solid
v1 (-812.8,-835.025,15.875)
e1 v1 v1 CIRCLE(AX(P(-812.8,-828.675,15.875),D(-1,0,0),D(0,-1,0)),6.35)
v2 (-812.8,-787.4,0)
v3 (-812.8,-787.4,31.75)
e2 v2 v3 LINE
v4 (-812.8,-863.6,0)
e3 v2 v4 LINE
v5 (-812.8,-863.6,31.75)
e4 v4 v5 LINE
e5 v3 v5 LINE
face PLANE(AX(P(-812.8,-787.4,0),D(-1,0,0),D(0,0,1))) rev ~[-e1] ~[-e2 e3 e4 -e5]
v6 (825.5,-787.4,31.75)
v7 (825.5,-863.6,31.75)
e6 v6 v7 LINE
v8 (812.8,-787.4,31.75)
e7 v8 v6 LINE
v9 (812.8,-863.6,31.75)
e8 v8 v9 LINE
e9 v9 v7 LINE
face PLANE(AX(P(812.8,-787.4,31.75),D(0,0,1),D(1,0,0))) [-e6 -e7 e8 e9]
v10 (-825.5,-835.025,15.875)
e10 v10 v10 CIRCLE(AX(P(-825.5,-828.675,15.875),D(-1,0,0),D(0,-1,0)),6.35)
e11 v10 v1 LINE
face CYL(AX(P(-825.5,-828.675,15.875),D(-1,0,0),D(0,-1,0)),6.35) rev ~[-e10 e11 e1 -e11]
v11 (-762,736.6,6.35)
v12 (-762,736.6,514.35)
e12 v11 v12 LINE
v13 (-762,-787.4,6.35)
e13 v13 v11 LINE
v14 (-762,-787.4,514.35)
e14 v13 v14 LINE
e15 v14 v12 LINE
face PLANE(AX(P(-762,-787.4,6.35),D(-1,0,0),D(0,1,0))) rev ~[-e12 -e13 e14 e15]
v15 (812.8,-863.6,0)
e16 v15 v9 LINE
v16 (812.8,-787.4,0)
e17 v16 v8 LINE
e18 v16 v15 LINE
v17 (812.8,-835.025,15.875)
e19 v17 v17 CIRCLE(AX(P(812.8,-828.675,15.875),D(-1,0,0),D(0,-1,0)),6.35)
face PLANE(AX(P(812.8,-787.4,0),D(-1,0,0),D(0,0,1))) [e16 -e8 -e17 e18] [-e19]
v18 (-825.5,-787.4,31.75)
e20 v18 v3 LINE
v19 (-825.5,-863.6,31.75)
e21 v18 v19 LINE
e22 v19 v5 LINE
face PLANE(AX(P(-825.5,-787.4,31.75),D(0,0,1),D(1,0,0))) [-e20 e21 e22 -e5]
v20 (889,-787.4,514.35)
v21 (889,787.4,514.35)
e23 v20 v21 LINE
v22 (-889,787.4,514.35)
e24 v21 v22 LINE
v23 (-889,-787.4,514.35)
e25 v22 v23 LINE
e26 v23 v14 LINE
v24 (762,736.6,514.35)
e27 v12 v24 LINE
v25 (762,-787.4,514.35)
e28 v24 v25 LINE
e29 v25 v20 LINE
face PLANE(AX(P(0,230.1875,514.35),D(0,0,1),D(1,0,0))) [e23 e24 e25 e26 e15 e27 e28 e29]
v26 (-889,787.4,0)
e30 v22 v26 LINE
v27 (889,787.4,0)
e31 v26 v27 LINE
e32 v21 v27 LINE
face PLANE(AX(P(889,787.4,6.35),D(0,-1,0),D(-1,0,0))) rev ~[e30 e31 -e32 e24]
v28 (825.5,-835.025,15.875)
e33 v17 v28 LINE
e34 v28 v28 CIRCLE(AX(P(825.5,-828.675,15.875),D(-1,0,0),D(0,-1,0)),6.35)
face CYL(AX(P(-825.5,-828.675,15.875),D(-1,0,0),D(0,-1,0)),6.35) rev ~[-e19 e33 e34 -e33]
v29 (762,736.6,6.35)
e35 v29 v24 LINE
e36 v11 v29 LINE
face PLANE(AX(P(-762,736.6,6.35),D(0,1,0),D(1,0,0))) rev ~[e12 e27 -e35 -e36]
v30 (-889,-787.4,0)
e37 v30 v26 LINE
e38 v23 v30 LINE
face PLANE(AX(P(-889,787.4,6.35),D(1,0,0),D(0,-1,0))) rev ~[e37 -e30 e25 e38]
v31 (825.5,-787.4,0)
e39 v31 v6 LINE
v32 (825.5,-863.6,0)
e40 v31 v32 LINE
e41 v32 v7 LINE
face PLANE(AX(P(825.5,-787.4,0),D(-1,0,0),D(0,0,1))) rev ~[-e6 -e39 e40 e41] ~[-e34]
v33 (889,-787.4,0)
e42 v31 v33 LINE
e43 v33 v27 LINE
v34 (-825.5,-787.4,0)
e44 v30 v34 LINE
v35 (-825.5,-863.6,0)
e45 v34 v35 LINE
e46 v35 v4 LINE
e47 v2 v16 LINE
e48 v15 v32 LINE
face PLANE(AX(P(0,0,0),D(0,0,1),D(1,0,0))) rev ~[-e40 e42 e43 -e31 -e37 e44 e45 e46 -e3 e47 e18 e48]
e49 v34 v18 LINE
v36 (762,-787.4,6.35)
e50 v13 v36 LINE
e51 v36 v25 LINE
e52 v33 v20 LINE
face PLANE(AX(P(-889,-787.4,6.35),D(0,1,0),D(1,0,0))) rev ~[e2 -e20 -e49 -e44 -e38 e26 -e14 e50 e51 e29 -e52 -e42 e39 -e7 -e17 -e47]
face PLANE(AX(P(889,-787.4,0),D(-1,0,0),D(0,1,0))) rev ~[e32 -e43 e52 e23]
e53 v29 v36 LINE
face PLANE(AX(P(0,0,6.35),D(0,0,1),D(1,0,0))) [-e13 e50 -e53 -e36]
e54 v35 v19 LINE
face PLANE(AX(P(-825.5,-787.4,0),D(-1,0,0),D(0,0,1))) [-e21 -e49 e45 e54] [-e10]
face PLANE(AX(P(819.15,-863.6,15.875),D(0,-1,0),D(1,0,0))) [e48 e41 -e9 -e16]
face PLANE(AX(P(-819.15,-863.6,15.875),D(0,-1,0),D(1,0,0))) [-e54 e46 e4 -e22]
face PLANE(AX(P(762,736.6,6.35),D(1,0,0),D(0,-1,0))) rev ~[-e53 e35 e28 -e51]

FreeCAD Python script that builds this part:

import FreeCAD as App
import Part
import Sketcher
Q = App.Units.Quantity

doc = App.newDocument("Part")
body = doc.addObject("PartDesign::Body", "Body")

# Sketch on XY plane
sketch1 = body.newObject("Sketcher::SketchObject", "Sketch")
sketch1.AttachmentSupport = (doc.getObject("XY_Plane"), [""])
sketch1.MapMode = "FlatFace"
sketch1.addGeometry([
    Part.LineSegment(App.Vector(-889, 787, 0), App.Vector(-889, -787, 0)),
    Part.LineSegment(App.Vector(-889, -787, 0), App.Vector(889, -787, 0)),
    Part.LineSegment(App.Vector(889, -787, 0), App.Vector(889, 787, 0)),
    Part.LineSegment(App.Vector(889, 787, 0), App.Vector(-889, 787, 0)),
], False)
sketch1.addConstraint([
    Sketcher.Constraint("Coincident", 0, 2, 1, 1),
    Sketcher.Constraint("Coincident", 1, 2, 2, 1),
    Sketcher.Constraint("Coincident", 2, 2, 3, 1),
    Sketcher.Constraint("Coincident", 3, 2, 0, 1),
    Sketcher.Constraint("Vertical", 0),
    Sketcher.Constraint("Horizontal", 1),
    Sketcher.Constraint("Vertical", 2),
    Sketcher.Constraint("Horizontal", 3),
    Sketcher.Constraint("Symmetric", 0, 2, 2, 2, -1, 1),
    Sketcher.Constraint("DistanceX", 1, 1, 1, 2, Q("70 in")),
    Sketcher.Constraint("DistanceY", 0, 2, 0, 1, Q("62 in")),
])
pad1 = body.newObject("PartDesign::Pad", "Pad")
pad1.Profile = sketch1
pad1.Length = Q("0.25 in")

# Sketch on XY plane
sketch2 = body.newObject("Sketcher::SketchObject", "Sketch001")
sketch2.AttachmentSupport = (doc.getObject("XY_Plane"), [""])
sketch2.MapMode = "FlatFace"
sketch2.AttachmentOffset = App.Placement(App.Vector(0, 0, 0.25 * 25.4), App.Rotation())
sketch2.addGeometry([
    Part.LineSegment(App.Vector(-889, -787, 0), App.Vector(-762, -787, 0)),  # 0
    Part.LineSegment(App.Vector(-762, -787, 0), App.Vector(-762, 737, 0)),  # 1
    Part.LineSegment(App.Vector(-762, 737, 0), App.Vector(762, 737, 0)),  # 2
    Part.LineSegment(App.Vector(762, 737, 0), App.Vector(762, -787, 0)),  # 3
    Part.LineSegment(App.Vector(762, -787, 0), App.Vector(889, -787, 0)),  # 4
    Part.LineSegment(App.Vector(889, -787, 0), App.Vector(889, 787, 0)),  # 5
    Part.LineSegment(App.Vector(889, 787, 0), App.Vector(-889, 787, 0)),  # 6
    Part.LineSegment(App.Vector(-889, 787, 0), App.Vector(-889, -787, 0)),  # 7
], False)
sketch2.addConstraint([
    Sketcher.Constraint("Coincident", 0, 2, 1, 1),
    Sketcher.Constraint("Coincident", 1, 2, 2, 1),
    Sketcher.Constraint("Coincident", 2, 2, 3, 1),
    Sketcher.Constraint("Coincident", 3, 2, 4, 1),
    Sketcher.Constraint("Coincident", 4, 2, 5, 1),
    Sketcher.Constraint("Coincident", 5, 2, 6, 1),
    Sketcher.Constraint("Coincident", 6, 2, 7, 1),
    Sketcher.Constraint("Coincident", 7, 2, 0, 1),
    Sketcher.Constraint("Horizontal", 0),
    Sketcher.Constraint("Vertical", 1),
    Sketcher.Constraint("Horizontal", 2),
    Sketcher.Constraint("Vertical", 3),
    Sketcher.Constraint("Horizontal", 4),
    Sketcher.Constraint("Vertical", 5),
    Sketcher.Constraint("Horizontal", 6),
    Sketcher.Constraint("Vertical", 7),
    Sketcher.Constraint("Symmetric", 4, 2, 6, 2, -1, 1),
    Sketcher.Constraint("Symmetric", 0, 2, 3, 2, -2),
    Sketcher.Constraint("Equal", 2, 1),
    Sketcher.Constraint("DistanceX", 0, 1, 0, 2, Q("5 in")),
    Sketcher.Constraint("DistanceX", 2, 1, 2, 2, Q("60 in")),
    Sketcher.Constraint("DistanceY", 5, 1, 5, 2, Q("62 in")),
])
pad2 = body.newObject("PartDesign::Pad", "Pad001")
pad2.Profile = sketch2
pad2.Length = Q("20 in")

# Sketch on XZ plane
sketch3 = body.newObject("Sketcher::SketchObject", "Sketch002")
sketch3.AttachmentSupport = (doc.getObject("XZ_Plane"), [""])
sketch3.MapMode = "FlatFace"
sketch3.AttachmentOffset = App.Placement(App.Vector(0, 0, 31 * 25.4), App.Rotation())
sketch3.addGeometry([
    Part.LineSegment(App.Vector(-826, 32, 0), App.Vector(-826, 0, 0)),  # 0
    Part.LineSegment(App.Vector(-826, 0, 0), App.Vector(-813, 0, 0)),  # 1
    Part.LineSegment(App.Vector(-813, 0, 0), App.Vector(-813, 32, 0)),  # 2
    Part.LineSegment(App.Vector(-813, 32, 0), App.Vector(-826, 32, 0)),  # 3
    Part.LineSegment(App.Vector(813, 32, 0), App.Vector(813, 0, 0)),  # 4
    Part.LineSegment(App.Vector(813, 0, 0), App.Vector(826, 0, 0)),  # 5
    Part.LineSegment(App.Vector(826, 0, 0), App.Vector(826, 32, 0)),  # 6
    Part.LineSegment(App.Vector(826, 32, 0), App.Vector(813, 32, 0)),  # 7
], False)
sketch3.addConstraint([
    Sketcher.Constraint("Coincident", 0, 2, 1, 1),
    Sketcher.Constraint("Coincident", 1, 2, 2, 1),
    Sketcher.Constraint("Coincident", 2, 2, 3, 1),
    Sketcher.Constraint("Coincident", 3, 2, 0, 1),
    Sketcher.Constraint("Coincident", 4, 2, 5, 1),
    Sketcher.Constraint("Coincident", 5, 2, 6, 1),
    Sketcher.Constraint("Coincident", 6, 2, 7, 1),
    Sketcher.Constraint("Coincident", 7, 2, 4, 1),
    Sketcher.Constraint("Vertical", 0),
    Sketcher.Constraint("Horizontal", 1),
    Sketcher.Constraint("Vertical", 2),
    Sketcher.Constraint("Horizontal", 3),
    Sketcher.Constraint("Vertical", 4),
    Sketcher.Constraint("Horizontal", 5),
    Sketcher.Constraint("Vertical", 6),
    Sketcher.Constraint("Horizontal", 7),
    Sketcher.Constraint("Symmetric", 1, 2, 4, 2, -1, 1),
    Sketcher.Constraint("Symmetric", 0, 2, 5, 2, -2),
    Sketcher.Constraint("Horizontal", 3, 2, 6, 2),
    Sketcher.Constraint("DistanceX", 1, 1, 1, 2, Q("0.5 in")),
    Sketcher.Constraint("DistanceX", 1, 2, -1, 1, Q("32 in")),
    Sketcher.Constraint("DistanceY", 0, 2, 0, 1, Q("1.25 in")),
])
pad3 = body.newObject("PartDesign::Pad", "Pad002")
pad3.Profile = sketch3
pad3.Length = Q("3 in")

# Sketch on YZ plane
sketch4 = body.newObject("Sketcher::SketchObject", "Sketch003")
sketch4.AttachmentSupport = (doc.getObject("YZ_Plane"), [""])
sketch4.MapMode = "FlatFace"
sketch4.AttachmentOffset = App.Placement(App.Vector(0, 0, -32.5 * 25.4), App.Rotation())
sketch4.addGeometry(Part.Circle(App.Vector(-829, 16, 0), App.Vector(0, 0, 1), 6), False)
sketch4.addConstraint([
    Sketcher.Constraint("Diameter", 0, Q("0.5 in")),
    Sketcher.Constraint("DistanceX", 0, 3, -1, 1, Q("32.625 in")),
    Sketcher.Constraint("DistanceY", -1, 1, 0, 3, Q("0.625 in")),
])
pocket1 = body.newObject("PartDesign::Pocket", "Pocket")
pocket1.Profile = sketch4
pocket1.Type = "ThroughAll"
pocket1.Reversed = True

doc.recompute()
